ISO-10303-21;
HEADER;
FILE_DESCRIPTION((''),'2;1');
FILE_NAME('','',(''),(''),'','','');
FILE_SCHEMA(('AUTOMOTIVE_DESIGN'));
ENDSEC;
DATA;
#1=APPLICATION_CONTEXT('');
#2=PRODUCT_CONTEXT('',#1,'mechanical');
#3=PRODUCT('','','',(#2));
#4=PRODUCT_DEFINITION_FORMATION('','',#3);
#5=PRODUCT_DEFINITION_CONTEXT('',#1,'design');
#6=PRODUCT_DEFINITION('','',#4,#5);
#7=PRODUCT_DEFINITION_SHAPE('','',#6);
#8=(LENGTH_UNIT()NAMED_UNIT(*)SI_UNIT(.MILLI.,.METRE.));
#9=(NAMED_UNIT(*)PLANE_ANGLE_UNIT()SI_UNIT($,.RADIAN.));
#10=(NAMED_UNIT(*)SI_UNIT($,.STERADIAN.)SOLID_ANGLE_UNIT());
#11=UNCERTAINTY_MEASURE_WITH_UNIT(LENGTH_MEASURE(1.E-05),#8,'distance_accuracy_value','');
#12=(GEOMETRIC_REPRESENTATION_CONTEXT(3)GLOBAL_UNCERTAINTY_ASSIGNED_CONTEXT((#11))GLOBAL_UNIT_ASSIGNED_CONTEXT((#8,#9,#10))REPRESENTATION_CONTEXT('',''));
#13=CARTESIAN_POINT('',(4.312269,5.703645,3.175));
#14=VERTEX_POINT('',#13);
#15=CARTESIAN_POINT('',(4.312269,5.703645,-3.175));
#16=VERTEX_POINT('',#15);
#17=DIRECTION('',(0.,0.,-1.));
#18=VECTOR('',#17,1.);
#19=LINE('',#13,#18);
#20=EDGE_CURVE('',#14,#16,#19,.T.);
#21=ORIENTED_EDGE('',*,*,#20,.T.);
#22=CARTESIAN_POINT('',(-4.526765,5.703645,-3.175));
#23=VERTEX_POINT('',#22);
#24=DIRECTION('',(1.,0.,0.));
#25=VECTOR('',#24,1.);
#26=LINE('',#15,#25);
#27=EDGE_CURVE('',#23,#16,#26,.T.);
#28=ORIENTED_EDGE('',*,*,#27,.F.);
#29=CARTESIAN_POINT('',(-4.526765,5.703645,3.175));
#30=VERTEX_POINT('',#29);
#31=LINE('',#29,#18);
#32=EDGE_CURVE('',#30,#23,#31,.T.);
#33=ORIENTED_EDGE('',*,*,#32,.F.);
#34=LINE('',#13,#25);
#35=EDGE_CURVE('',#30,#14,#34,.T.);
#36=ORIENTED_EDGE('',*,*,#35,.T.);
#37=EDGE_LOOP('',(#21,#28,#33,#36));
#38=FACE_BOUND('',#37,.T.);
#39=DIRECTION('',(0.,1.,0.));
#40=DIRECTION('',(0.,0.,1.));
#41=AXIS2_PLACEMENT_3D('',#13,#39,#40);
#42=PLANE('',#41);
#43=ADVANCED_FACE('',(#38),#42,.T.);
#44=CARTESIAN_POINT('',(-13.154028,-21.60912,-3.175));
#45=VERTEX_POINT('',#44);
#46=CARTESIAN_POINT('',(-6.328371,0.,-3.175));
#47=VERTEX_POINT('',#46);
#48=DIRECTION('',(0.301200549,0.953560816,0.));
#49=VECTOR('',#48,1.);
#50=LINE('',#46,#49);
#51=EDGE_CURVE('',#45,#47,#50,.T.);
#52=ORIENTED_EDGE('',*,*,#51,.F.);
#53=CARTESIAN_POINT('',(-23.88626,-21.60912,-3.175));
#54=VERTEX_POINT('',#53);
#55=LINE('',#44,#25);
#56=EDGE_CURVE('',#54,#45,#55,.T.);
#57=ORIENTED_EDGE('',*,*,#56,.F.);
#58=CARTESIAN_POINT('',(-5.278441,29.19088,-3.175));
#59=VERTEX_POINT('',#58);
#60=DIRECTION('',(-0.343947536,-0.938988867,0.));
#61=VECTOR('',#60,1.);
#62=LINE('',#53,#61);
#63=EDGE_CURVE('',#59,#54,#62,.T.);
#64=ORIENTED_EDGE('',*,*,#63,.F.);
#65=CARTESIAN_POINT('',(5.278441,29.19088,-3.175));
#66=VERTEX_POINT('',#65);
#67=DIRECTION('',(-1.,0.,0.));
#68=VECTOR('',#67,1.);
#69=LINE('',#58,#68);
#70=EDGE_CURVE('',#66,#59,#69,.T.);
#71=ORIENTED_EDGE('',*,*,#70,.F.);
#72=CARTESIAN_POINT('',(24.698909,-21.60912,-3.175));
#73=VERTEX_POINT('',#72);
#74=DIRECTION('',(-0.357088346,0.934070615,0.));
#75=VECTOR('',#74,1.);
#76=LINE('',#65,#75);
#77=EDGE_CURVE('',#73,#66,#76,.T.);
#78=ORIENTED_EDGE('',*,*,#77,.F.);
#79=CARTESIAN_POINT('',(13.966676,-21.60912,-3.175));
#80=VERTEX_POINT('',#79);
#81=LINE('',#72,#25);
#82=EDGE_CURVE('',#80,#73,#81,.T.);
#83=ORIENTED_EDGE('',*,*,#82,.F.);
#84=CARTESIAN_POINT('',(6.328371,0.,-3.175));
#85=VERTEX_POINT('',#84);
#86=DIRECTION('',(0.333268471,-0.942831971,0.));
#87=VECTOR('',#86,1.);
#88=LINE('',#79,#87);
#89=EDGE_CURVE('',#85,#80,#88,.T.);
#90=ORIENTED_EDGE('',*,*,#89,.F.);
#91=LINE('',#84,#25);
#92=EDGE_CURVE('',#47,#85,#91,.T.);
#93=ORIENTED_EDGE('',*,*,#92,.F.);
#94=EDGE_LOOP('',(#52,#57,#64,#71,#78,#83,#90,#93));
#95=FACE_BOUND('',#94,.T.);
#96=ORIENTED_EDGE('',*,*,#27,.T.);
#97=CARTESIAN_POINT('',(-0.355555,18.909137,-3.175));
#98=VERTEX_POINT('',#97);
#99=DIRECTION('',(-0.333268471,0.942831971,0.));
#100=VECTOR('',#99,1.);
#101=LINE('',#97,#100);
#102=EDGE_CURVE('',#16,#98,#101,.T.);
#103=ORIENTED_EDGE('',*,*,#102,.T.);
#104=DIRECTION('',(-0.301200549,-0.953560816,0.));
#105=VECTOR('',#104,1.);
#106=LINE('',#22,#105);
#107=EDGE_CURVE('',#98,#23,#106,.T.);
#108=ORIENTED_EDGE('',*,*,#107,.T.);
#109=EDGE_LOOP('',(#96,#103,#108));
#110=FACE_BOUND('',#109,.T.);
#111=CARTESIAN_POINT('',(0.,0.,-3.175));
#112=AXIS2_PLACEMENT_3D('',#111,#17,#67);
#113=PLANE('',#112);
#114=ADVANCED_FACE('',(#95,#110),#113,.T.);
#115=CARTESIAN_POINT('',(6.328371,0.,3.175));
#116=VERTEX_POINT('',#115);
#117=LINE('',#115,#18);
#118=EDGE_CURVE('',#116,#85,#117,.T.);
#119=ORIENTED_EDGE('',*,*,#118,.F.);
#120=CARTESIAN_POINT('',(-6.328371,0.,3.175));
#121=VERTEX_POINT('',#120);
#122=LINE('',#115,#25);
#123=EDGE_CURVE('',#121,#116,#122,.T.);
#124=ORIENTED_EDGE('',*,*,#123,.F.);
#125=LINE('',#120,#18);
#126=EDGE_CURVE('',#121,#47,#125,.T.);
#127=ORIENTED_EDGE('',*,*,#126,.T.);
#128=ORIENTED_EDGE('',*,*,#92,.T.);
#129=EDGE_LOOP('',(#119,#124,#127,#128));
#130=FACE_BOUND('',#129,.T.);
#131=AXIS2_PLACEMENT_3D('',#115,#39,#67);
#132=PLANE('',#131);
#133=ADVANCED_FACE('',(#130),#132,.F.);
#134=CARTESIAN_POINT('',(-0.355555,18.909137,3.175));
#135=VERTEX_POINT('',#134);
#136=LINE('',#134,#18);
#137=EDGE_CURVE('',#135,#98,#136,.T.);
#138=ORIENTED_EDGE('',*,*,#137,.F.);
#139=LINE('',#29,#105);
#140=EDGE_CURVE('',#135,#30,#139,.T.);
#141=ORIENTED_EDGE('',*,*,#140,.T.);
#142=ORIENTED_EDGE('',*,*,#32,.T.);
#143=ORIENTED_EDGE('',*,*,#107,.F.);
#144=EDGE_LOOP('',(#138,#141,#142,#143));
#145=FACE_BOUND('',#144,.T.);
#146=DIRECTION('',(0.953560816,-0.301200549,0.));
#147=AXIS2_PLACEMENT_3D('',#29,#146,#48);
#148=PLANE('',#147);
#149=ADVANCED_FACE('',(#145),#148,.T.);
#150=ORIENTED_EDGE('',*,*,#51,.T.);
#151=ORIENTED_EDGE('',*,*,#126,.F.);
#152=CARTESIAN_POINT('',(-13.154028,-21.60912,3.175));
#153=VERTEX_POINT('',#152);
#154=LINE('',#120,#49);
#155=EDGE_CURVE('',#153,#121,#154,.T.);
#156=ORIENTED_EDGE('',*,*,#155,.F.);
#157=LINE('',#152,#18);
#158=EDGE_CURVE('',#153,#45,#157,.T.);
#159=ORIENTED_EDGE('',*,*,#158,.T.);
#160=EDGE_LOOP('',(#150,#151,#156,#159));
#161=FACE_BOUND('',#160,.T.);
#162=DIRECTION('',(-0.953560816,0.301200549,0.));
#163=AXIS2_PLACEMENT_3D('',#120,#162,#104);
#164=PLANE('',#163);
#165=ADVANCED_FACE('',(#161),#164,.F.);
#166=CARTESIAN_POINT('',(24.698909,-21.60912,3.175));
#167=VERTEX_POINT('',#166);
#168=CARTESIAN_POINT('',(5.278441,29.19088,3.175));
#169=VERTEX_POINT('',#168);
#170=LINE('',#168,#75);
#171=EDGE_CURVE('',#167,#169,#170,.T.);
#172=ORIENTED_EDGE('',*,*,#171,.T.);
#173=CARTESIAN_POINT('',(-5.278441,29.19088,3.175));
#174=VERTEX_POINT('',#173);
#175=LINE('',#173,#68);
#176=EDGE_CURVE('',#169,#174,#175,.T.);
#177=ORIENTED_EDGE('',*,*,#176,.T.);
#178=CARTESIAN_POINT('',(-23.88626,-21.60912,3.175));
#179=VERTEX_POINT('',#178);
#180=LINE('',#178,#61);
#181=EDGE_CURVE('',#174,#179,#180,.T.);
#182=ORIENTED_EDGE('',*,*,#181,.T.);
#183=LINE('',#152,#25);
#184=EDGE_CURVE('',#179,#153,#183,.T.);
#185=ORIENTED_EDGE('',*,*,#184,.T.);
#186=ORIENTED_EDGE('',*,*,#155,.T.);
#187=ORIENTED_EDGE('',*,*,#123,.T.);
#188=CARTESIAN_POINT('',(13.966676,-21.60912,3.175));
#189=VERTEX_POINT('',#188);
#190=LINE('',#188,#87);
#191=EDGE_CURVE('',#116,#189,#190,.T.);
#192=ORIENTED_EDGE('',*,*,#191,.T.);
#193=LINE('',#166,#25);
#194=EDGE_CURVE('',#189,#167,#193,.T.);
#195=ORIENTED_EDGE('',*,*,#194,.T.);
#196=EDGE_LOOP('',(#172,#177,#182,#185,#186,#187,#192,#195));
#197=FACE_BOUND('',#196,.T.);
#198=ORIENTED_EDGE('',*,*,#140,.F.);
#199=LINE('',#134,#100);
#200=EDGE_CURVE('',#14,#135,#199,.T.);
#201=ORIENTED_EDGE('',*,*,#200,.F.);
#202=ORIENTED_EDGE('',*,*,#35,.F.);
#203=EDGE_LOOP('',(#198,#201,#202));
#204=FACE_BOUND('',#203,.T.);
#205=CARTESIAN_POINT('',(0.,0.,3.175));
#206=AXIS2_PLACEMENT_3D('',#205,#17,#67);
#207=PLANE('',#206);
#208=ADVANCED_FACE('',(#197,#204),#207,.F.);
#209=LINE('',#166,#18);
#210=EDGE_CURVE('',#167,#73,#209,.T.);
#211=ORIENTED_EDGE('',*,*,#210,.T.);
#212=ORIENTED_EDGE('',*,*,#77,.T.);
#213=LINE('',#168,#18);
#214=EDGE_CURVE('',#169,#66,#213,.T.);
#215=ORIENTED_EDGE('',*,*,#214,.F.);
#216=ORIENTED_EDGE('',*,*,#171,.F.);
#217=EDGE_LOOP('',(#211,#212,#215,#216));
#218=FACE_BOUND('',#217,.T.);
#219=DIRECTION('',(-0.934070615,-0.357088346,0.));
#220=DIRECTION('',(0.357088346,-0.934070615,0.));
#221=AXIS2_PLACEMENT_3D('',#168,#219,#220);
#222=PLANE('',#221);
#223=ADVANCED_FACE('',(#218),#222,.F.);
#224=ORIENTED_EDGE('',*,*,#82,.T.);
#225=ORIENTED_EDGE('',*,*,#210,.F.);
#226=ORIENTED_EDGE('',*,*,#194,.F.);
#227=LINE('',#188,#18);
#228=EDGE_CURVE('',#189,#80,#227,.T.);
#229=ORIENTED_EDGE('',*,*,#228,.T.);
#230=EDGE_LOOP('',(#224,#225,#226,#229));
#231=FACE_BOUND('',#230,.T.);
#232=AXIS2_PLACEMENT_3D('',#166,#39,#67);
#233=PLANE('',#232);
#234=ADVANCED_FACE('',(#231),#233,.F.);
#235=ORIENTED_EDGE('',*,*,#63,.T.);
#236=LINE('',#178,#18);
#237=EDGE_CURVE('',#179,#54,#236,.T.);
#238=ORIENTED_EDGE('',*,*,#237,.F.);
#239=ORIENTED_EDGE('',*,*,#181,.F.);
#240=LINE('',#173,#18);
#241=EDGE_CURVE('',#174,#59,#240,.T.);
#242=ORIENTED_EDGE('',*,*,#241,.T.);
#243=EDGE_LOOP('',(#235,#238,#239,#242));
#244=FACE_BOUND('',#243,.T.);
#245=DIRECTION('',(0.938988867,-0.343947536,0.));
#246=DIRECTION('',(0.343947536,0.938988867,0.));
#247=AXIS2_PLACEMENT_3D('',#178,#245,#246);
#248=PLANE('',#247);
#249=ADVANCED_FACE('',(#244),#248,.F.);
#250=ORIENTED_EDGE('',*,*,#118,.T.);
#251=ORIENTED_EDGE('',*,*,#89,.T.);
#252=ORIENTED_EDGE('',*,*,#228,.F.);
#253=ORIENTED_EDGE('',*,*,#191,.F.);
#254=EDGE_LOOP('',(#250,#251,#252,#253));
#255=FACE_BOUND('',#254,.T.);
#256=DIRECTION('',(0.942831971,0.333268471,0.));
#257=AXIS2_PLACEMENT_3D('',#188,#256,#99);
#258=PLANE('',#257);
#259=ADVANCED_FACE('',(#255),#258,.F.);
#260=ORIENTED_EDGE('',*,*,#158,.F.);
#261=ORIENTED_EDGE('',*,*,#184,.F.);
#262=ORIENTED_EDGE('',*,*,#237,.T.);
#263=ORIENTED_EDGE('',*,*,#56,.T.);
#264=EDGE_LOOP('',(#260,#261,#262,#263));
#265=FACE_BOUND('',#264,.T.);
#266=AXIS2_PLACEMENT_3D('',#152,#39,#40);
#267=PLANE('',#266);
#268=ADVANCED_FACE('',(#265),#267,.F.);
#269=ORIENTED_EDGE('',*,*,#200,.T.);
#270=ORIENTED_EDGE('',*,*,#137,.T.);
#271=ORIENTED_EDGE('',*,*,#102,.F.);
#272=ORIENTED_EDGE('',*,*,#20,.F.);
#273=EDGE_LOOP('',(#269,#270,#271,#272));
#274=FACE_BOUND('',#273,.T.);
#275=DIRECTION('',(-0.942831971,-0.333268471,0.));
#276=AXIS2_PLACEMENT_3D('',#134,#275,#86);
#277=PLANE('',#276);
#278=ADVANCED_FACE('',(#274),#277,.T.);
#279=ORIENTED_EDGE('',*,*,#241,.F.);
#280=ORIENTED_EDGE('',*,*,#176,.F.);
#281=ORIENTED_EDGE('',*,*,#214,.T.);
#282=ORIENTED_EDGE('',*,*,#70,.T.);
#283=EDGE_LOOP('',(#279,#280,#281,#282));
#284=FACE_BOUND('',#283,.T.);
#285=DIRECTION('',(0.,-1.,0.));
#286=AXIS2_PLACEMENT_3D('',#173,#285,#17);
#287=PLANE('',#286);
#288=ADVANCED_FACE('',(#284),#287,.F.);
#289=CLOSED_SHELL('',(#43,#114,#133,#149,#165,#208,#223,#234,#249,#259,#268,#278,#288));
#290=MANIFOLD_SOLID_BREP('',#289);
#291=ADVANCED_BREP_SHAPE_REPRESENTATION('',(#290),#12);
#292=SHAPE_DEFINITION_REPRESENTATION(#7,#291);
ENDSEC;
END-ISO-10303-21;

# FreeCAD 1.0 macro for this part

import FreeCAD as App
import Part
import Sketcher
from FreeCAD import Vector
Q = App.Units.Quantity

doc = App.newDocument("Part")
body = doc.addObject("PartDesign::Body", "Body")

sketch1 = body.newObject("Sketcher::SketchObject", "Sketch")
sketch1.AttachmentSupport = (doc.getObject("XY_Plane"), [""])
sketch1.MapMode = "FlatFace"
sketch1.addGeometry(Part.LineSegment(Vector(5, 29, 0), Vector(-5, 29, 0)), False)
sketch1.addGeometry(Part.LineSegment(Vector(-5, 29, 0), Vector(-24, -22, 0)), False)
sketch1.addGeometry(Part.LineSegment(Vector(-24, -22, 0), Vector(-13, -22, 0)), False)
sketch1.addGeometry(Part.LineSegment(Vector(-13, -22, 0), Vector(-6, 0, 0)), False)
sketch1.addGeometry(Part.LineSegment(Vector(-6, 0, 0), Vector(6, 0, 0)), False)
sketch1.addGeometry(Part.LineSegment(Vector(6, 0, 0), Vector(14, -22, 0)), False)
sketch1.addGeometry(Part.LineSegment(Vector(14, -22, 0), Vector(25, -22, 0)), False)
sketch1.addGeometry(Part.LineSegment(Vector(25, -22, 0), Vector(5, 29, 0)), False)
sketch1.addGeometry(Part.LineSegment(Vector(0, 19, 0), Vector(4, 6, 0)), False)
sketch1.addGeometry(Part.LineSegment(Vector(4, 6, 0), Vector(-5, 6, 0)), False)
sketch1.addGeometry(Part.LineSegment(Vector(-5, 6, 0), Vector(0, 19, 0)), False)
sketch1.addConstraint(Sketcher.Constraint("Coincident", 0, 2, 1, 1))
sketch1.addConstraint(Sketcher.Constraint("Coincident", 1, 2, 2, 1))
sketch1.addConstraint(Sketcher.Constraint("Coincident", 2, 2, 3, 1))
sketch1.addConstraint(Sketcher.Constraint("Coincident", 3, 2, 4, 1))
sketch1.addConstraint(Sketcher.Constraint("Coincident", 4, 2, 5, 1))
sketch1.addConstraint(Sketcher.Constraint("Coincident", 5, 2, 6, 1))
sketch1.addConstraint(Sketcher.Constraint("Coincident", 6, 2, 7, 1))
sketch1.addConstraint(Sketcher.Constraint("Coincident", 7, 2, 0, 1))
sketch1.addConstraint(Sketcher.Constraint("Coincident", 8, 2, 9, 1))
sketch1.addConstraint(Sketcher.Constraint("Coincident", 9, 2, 10, 1))
sketch1.addConstraint(Sketcher.Constraint("Coincident", 10, 2, 8, 1))
sketch1.addConstraint(Sketcher.Constraint("Horizontal", 0))
sketch1.addConstraint(Sketcher.Constraint("Horizontal", 2))
sketch1.addConstraint(Sketcher.Constraint("Horizontal", 4))
sketch1.addConstraint(Sketcher.Constraint("Horizontal", 6))
sketch1.addConstraint(Sketcher.Constraint("Horizontal", 9))
sketch1.addConstraint(Sketcher.Constraint("Symmetric", 3, 2, 4, 2, -1, 1))
sketch1.addConstraint(Sketcher.Constraint("Parallel", 5, 8))
sketch1.addConstraint(Sketcher.Constraint("Parallel", 3, 10))
sketch1.addConstraint(Sketcher.Constraint("Horizontal", 2, 2, 5, 2))
sketch1.addConstraint(Sketcher.Constraint("Equal", 2, 6))
sketch1.addConstraint(Sketcher.Constraint("DistanceY", 1, 2, 0, 2, Q("2 in")))
sketch1.addConstraint(Sketcher.Constraint("Distance", 8, Q("14.0062 mm")))
sketch1.addConstraint(Sketcher.Constraint("DistanceX", 4, 1, 4, 2, Q("12.656741 mm")))
sketch1.addConstraint(Sketcher.Constraint("DistanceX", 2, 2, 4, 2, Q("19.482398 mm")))
sketch1.addConstraint(Sketcher.Constraint("DistanceX", 8, 2, 4, 2, Q("2.016101 mm")))
sketch1.addConstraint(Sketcher.Constraint("Distance", 7, Q("54.38561 mm")))
sketch1.addConstraint(Sketcher.Constraint("Distance", 10, Q("13.848611 mm")))
sketch1.addConstraint(Sketcher.Constraint("DistanceX", 0, 2, 0, 1, Q("10.556883 mm")))
sketch1.addConstraint(Sketcher.Constraint("DistanceX", 2, 1, 2, 2, Q("10.732233 mm")))
sketch1.addConstraint(Sketcher.Constraint("DistanceX", 9, 2, 9, 1, Q("8.839034 mm")))
sketch1.addConstraint(Sketcher.Constraint("DistanceY", -1, 1, 8, 2, Q("5.703645 mm")))
pad1 = body.newObject("PartDesign::Pad", "Pad")
pad1.Profile = sketch1
pad1.Length = Q("0.25 in")
pad1.Midplane = True

doc.recompute()
